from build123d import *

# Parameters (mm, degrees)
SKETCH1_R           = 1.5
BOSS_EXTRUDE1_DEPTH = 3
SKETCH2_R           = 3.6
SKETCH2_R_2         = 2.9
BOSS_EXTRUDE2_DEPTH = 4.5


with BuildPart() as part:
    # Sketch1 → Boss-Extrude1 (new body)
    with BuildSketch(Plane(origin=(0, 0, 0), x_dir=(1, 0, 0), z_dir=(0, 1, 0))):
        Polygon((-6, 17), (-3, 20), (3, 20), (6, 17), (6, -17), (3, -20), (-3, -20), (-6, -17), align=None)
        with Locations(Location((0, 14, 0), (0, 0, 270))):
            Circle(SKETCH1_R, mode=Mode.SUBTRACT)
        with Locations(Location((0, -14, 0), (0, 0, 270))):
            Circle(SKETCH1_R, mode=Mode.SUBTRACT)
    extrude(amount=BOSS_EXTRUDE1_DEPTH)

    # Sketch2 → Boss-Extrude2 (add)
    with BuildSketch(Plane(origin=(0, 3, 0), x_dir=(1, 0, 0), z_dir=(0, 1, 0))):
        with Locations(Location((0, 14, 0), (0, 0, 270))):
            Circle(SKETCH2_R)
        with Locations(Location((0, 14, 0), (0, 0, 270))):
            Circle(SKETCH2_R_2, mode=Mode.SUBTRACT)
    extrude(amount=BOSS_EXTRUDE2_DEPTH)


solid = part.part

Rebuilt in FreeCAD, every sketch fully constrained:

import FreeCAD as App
import Part
import Sketcher

V = App.Vector
Q = App.Units.Quantity


def add_polygon(sketch, points):
    """Adds a closed chain of lines whose ends are joined by coincident constraints."""
    first, n = sketch.GeometryCount, len(points)
    for a, b in zip(points, points[1:] + points[:1]):
        sketch.addGeometry(Part.LineSegment(App.Vector(*a, 0), App.Vector(*b, 0)), False)
    for i in range(n):
        sketch.addConstraint(Sketcher.Constraint("Coincident", first + i, 2, first + (i + 1) % n, 1))

doc = App.newDocument("Part")
body = doc.addObject("PartDesign::Body", "Body")

# Sketch on XZ plane
sketch1 = body.newObject("Sketcher::SketchObject", "Sketch")
sketch1.AttachmentSupport = (doc.getObject("XZ_Plane"), [""])
sketch1.MapMode = "FlatFace"
add_polygon(sketch1, [(-3, -20), (-6, -17), (-6, 17), (-3, 20), (3, 20), (6, 17), (6, -17), (3, -20)])  # lines 0-7
sketch1.addGeometry(Part.Circle(V(0, 14, 0), V(0, 0, 1), 1.5), False)  # 8
sketch1.addGeometry(Part.Circle(V(0, -14, 0), V(0, 0, 1), 1.5), False)  # 9
sketch1.addConstraint([
    Sketcher.Constraint("Vertical", 1),
    Sketcher.Constraint("Horizontal", 3),
    Sketcher.Constraint("Vertical", 5),
    Sketcher.Constraint("Horizontal", 7),
    Sketcher.Constraint("Equal", 8, 9),
    Sketcher.Constraint("Symmetric", 8, 3, 9, 3, -1, 1),
    Sketcher.Constraint("Symmetric", 0, 2, 4, 2, -1, 1),
    Sketcher.Constraint("Symmetric", 2, 2, 6, 2, -1, 1),
    Sketcher.Constraint("PointOnObject", 8, 3, -2),
    Sketcher.Constraint("Perpendicular", 0, 2),
    Sketcher.Constraint("Perpendicular", 2, 4),
    Sketcher.Constraint("Perpendicular", 4, 6),
    Sketcher.Constraint("Horizontal", 1, 2, 4, 2),
    Sketcher.Constraint("Vertical", 3, 2, 6, 2),
    Sketcher.Constraint("Diameter", 8, Q("3 mm")),
    Sketcher.Constraint("DistanceX", 3, 1, 3, 2, Q("6 mm")),
    Sketcher.Constraint("DistanceY", 1, 1, 1, 2, Q("34 mm")),
    Sketcher.Constraint("DistanceY", -1, 1, 8, 3, Q("14 mm")),
    Sketcher.Constraint("DistanceX", 0, 2, -1, 1, Q("6 mm")),
])
pad1 = body.newObject("PartDesign::Pad", "Pad")
pad1.Profile = sketch1
pad1.Length = 3
pad1.Reversed = True

# Sketch on XZ plane
sketch2 = body.newObject("Sketcher::SketchObject", "Sketch001")
sketch2.AttachmentSupport = (doc.getObject("XZ_Plane"), [""])
sketch2.MapMode = "FlatFace"
sketch2.AttachmentOffset = App.Placement(V(0, 0, -3), App.Rotation())
sketch2.addGeometry([
    Part.Circle(V(0, -14, 0), V(0, 0, 1), 3.6),
    Part.Circle(V(0, -14, 0), V(0, 0, 1), 2.9),
], False)
sketch2.addConstraint([
    Sketcher.Constraint("Coincident", 1, 3, 0, 3),
    Sketcher.Constraint("PointOnObject", 0, 3, -2),
    Sketcher.Constraint("Diameter", 0, Q("7.2 mm")),
    Sketcher.Constraint("Diameter", 1, Q("5.8 mm")),
    Sketcher.Constraint("DistanceY", 0, 3, -1, 1, Q("14 mm")),
])
pad2 = body.newObject("PartDesign::Pad", "Pad001")
pad2.Profile = sketch2
pad2.Length = 4.5
pad2.Reversed = True

doc.recompute()
